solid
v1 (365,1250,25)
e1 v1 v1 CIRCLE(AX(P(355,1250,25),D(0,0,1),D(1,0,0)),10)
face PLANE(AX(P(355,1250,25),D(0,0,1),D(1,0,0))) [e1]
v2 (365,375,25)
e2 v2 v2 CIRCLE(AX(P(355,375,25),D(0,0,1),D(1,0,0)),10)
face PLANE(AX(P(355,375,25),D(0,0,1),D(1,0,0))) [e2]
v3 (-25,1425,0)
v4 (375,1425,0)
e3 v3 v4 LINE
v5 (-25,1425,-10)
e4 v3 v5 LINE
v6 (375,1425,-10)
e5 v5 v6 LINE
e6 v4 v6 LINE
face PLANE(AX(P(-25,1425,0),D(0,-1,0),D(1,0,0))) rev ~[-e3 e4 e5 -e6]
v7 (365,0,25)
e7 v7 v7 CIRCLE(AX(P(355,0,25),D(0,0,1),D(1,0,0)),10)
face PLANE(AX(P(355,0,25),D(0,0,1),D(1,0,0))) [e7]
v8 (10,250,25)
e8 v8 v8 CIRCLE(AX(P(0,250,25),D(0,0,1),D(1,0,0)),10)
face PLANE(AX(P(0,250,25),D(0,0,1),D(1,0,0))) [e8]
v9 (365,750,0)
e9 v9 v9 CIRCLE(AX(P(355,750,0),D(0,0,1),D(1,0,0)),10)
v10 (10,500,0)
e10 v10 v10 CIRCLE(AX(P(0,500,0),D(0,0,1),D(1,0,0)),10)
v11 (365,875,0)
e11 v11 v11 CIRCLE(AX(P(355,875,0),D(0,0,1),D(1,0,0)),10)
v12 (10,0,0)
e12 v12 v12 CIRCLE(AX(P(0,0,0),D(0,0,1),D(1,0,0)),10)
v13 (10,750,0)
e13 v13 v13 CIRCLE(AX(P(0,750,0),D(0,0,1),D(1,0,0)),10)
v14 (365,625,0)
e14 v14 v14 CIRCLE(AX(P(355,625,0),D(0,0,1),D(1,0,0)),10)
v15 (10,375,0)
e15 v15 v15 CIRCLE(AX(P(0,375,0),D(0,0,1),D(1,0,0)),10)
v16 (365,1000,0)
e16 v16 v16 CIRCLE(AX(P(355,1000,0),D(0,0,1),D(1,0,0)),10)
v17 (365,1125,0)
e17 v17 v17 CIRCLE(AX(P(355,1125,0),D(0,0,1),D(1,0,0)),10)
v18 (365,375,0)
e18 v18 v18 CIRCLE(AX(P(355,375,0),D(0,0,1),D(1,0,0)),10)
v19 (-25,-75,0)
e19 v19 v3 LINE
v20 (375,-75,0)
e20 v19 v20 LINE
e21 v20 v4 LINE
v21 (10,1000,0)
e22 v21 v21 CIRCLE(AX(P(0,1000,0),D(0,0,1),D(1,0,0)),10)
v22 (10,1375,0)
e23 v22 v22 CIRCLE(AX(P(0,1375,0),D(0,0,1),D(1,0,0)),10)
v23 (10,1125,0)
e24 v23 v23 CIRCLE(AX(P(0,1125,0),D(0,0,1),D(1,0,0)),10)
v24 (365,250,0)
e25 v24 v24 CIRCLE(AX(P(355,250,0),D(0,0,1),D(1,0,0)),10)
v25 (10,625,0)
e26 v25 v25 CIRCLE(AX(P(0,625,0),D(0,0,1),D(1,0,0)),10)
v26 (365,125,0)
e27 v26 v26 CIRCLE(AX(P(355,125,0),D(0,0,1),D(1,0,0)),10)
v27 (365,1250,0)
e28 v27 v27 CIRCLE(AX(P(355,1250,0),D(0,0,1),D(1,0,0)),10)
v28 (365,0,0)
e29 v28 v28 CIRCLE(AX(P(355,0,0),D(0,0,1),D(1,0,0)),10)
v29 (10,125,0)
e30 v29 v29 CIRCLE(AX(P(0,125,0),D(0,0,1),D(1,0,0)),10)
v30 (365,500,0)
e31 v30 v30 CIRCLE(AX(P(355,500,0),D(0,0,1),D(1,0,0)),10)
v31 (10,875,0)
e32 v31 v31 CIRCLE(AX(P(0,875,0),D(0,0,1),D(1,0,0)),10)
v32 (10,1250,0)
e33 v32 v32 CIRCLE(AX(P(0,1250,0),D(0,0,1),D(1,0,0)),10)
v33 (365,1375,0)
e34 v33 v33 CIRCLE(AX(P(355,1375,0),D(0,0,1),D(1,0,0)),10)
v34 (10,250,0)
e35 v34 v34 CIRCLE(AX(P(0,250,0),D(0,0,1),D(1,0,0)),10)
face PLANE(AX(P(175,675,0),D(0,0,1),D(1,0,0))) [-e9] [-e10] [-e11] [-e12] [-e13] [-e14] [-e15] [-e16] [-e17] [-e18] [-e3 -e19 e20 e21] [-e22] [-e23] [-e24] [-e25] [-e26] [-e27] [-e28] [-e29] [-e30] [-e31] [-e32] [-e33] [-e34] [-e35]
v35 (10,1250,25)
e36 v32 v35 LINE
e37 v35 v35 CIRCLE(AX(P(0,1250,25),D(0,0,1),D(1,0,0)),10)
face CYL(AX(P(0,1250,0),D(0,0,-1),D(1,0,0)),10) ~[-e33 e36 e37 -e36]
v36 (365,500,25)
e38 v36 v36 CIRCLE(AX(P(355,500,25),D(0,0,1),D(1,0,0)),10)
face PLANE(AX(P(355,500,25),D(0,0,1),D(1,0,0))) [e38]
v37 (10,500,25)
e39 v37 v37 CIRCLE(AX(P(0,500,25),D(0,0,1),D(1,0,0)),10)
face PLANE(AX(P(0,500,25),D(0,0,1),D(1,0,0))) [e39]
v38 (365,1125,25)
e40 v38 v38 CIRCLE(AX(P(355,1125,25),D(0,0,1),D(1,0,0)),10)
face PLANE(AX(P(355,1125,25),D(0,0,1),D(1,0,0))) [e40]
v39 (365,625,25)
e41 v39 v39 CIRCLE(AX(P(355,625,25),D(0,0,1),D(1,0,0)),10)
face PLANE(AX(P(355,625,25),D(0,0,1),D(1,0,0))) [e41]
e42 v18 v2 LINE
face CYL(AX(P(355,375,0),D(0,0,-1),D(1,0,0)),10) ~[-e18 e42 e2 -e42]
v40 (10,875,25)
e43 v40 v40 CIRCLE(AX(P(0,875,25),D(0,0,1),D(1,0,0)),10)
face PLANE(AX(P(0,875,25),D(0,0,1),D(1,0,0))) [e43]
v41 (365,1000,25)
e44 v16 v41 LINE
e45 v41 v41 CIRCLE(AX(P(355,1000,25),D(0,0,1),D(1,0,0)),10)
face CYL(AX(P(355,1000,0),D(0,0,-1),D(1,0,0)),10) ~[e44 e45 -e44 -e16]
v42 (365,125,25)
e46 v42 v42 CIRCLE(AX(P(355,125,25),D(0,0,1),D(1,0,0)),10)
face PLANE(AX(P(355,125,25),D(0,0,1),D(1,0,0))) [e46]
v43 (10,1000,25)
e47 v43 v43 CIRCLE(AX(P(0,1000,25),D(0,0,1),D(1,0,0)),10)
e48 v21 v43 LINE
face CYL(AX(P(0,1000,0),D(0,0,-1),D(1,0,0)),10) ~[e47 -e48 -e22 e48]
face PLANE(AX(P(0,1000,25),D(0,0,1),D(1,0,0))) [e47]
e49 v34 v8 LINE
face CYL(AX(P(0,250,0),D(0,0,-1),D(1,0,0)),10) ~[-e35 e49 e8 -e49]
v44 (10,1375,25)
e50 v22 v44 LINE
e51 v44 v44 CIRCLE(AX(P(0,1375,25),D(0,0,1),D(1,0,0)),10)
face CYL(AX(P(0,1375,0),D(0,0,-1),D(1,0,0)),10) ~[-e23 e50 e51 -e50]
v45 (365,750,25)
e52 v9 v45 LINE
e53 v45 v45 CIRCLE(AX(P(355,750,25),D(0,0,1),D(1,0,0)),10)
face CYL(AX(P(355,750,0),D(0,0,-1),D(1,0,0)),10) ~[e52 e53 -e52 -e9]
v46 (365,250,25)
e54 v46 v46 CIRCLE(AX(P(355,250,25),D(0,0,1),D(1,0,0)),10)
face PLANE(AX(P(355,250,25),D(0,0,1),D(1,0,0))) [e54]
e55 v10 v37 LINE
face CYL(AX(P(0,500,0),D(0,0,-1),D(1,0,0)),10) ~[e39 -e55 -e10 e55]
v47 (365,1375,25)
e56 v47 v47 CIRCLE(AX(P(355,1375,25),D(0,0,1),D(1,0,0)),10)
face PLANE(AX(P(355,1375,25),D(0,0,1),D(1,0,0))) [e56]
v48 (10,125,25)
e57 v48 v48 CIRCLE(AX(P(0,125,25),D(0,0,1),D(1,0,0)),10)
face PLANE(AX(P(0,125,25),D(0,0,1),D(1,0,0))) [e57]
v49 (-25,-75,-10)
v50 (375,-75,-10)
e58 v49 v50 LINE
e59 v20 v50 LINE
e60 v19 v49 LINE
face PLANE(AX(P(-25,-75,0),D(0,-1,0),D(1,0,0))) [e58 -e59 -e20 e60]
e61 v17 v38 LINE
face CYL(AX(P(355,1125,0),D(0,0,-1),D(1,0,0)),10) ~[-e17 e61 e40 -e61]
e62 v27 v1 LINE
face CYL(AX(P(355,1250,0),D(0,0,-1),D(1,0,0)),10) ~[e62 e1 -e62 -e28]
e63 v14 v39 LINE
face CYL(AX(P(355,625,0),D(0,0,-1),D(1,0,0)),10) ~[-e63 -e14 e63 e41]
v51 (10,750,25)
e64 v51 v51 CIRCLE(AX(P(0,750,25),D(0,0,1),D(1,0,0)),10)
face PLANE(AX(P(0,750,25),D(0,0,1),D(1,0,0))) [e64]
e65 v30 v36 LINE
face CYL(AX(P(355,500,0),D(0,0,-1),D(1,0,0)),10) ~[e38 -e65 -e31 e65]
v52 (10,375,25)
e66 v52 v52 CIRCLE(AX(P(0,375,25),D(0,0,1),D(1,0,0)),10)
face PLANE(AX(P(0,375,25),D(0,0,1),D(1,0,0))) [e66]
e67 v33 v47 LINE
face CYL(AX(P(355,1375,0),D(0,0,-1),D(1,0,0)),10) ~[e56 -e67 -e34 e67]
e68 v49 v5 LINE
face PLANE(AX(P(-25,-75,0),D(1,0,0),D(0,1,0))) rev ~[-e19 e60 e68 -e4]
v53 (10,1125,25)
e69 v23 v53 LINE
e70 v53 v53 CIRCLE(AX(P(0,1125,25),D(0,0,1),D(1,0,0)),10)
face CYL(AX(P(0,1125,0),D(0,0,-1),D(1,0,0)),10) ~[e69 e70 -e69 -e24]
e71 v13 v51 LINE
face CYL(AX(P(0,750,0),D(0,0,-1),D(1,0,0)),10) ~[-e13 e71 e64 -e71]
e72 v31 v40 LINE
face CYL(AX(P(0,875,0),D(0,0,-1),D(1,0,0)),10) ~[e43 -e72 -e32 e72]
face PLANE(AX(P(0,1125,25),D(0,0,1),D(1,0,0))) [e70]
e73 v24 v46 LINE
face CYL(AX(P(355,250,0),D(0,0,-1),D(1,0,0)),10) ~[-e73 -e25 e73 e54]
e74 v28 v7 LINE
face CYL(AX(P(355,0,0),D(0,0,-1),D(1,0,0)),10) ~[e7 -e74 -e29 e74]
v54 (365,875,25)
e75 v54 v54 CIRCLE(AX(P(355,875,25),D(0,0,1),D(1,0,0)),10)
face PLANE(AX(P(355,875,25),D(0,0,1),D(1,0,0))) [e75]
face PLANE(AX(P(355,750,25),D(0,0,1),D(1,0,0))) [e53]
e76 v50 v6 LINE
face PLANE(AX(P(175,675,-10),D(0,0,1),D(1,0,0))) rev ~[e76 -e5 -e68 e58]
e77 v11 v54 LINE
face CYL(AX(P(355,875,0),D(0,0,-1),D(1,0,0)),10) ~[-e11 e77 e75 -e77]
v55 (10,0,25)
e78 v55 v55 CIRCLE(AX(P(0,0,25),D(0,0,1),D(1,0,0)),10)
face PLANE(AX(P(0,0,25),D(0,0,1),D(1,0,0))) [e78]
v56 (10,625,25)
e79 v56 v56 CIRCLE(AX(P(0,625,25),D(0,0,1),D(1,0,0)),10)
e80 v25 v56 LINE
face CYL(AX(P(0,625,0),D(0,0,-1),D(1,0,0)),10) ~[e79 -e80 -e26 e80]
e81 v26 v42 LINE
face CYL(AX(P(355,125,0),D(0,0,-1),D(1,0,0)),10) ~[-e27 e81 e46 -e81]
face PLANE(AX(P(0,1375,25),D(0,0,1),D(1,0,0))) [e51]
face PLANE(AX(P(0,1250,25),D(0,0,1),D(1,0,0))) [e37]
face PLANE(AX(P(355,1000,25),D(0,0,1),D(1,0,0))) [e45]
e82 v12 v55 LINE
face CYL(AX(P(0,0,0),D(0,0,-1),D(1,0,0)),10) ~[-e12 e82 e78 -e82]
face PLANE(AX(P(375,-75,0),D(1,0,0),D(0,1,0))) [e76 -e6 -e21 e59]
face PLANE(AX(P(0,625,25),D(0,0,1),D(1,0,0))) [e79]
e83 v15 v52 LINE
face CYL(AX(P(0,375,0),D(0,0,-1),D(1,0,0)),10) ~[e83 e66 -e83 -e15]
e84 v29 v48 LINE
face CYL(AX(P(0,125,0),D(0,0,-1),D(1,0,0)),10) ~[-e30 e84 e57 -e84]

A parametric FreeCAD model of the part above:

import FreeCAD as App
import Part
import Sketcher


def add_polygon(sketch, points):
    """Adds a closed chain of lines whose ends are joined by coincident constraints."""
    first, n = sketch.GeometryCount, len(points)
    for a, b in zip(points, points[1:] + points[:1]):
        sketch.addGeometry(Part.LineSegment(App.Vector(*a, 0), App.Vector(*b, 0)), False)
    for i in range(n):
        sketch.addConstraint(Sketcher.Constraint("Coincident", first + i, 2, first + (i + 1) % n, 1))

doc = App.newDocument("Part")
body = doc.addObject("PartDesign::Body", "Body")

sketch1 = body.newObject("Sketcher::SketchObject", "Sketch")
sketch1.AttachmentSupport = (doc.getObject("XY_Plane"), [""])
sketch1.MapMode = "FlatFace"
add_polygon(sketch1, [(-25, 1425), (-25, -75), (375, -75), (375, 1425)])
sketch1.addConstraint([
    Sketcher.Constraint("Vertical", 0),
    Sketcher.Constraint("Horizontal", 1),
    Sketcher.Constraint("Vertical", 2),
    Sketcher.Constraint("Horizontal", 3),
    Sketcher.Constraint("DistanceX", 1, 1, 1, 2, 400.0),
    Sketcher.Constraint("DistanceY", 0, 2, 0, 1, 1500.0),
    Sketcher.Constraint("DistanceX", 0, 2, -1, 1, 25.0),
    Sketcher.Constraint("DistanceY", 0, 2, -1, 1, 75.0),
])
pad1 = body.newObject("PartDesign::Pad", "Pad")
pad1.Profile = sketch1
pad1.Length = 10
pad1.Reversed = True

sketch2 = body.newObject("Sketcher::SketchObject", "Sketch001")
sketch2.AttachmentSupport = (doc.getObject("XY_Plane"), [""])
sketch2.MapMode = "FlatFace"
sketch2.addGeometry([
    Part.Circle(App.Vector(0, 0, 0), App.Vector(0, 0, 1), 10),
    Part.Circle(App.Vector(0, 125, 0), App.Vector(0, 0, 1), 10),
    Part.Circle(App.Vector(0, 250, 0), App.Vector(0, 0, 1), 10),
    Part.Circle(App.Vector(0, 375, 0), App.Vector(0, 0, 1), 10),
    Part.Circle(App.Vector(0, 500, 0), App.Vector(0, 0, 1), 10),
    Part.Circle(App.Vector(0, 625, 0), App.Vector(0, 0, 1), 10),
    Part.Circle(App.Vector(0, 750, 0), App.Vector(0, 0, 1), 10),
    Part.Circle(App.Vector(0, 875, 0), App.Vector(0, 0, 1), 10),
    Part.Circle(App.Vector(0, 1000, 0), App.Vector(0, 0, 1), 10),
    Part.Circle(App.Vector(0, 1125, 0), App.Vector(0, 0, 1), 10),
    Part.Circle(App.Vector(0, 1250, 0), App.Vector(0, 0, 1), 10),
    Part.Circle(App.Vector(0, 1375, 0), App.Vector(0, 0, 1), 10),
    Part.Circle(App.Vector(355, 0, 0), App.Vector(0, 0, 1), 10),
    Part.Circle(App.Vector(355, 125, 0), App.Vector(0, 0, 1), 10),
    Part.Circle(App.Vector(355, 250, 0), App.Vector(0, 0, 1), 10),
    Part.Circle(App.Vector(355, 375, 0), App.Vector(0, 0, 1), 10),
    Part.Circle(App.Vector(355, 500, 0), App.Vector(0, 0, 1), 10),
    Part.Circle(App.Vector(355, 625, 0), App.Vector(0, 0, 1), 10),
    Part.Circle(App.Vector(355, 750, 0), App.Vector(0, 0, 1), 10),
    Part.Circle(App.Vector(355, 875, 0), App.Vector(0, 0, 1), 10),
    Part.Circle(App.Vector(355, 1000, 0), App.Vector(0, 0, 1), 10),
    Part.Circle(App.Vector(355, 1125, 0), App.Vector(0, 0, 1), 10),
    Part.Circle(App.Vector(355, 1250, 0), App.Vector(0, 0, 1), 10),
    Part.Circle(App.Vector(355, 1375, 0), App.Vector(0, 0, 1), 10),
], False)
sketch2.addConstraint([
    Sketcher.Constraint("Coincident", 0, 3, -1, 1),
    Sketcher.Constraint("Equal", 0, 1),
    Sketcher.Constraint("Equal", 1, 2),
    Sketcher.Constraint("Equal", 2, 3),
    Sketcher.Constraint("Equal", 3, 4),
    Sketcher.Constraint("Equal", 4, 5),
    Sketcher.Constraint("Equal", 5, 6),
    Sketcher.Constraint("Equal", 6, 7),
    Sketcher.Constraint("Equal", 7, 8),
    Sketcher.Constraint("Equal", 8, 9),
    Sketcher.Constraint("Equal", 9, 10),
    Sketcher.Constraint("Equal", 10, 11),
    Sketcher.Constraint("Equal", 11, 12),
    Sketcher.Constraint("Equal", 12, 13),
    Sketcher.Constraint("Equal", 13, 14),
    Sketcher.Constraint("Equal", 14, 15),
    Sketcher.Constraint("Equal", 15, 16),
    Sketcher.Constraint("Equal", 16, 17),
    Sketcher.Constraint("Equal", 17, 18),
    Sketcher.Constraint("Equal", 18, 19),
    Sketcher.Constraint("Equal", 19, 20),
    Sketcher.Constraint("Equal", 20, 21),
    Sketcher.Constraint("Equal", 21, 22),
    Sketcher.Constraint("Equal", 22, 23),
    Sketcher.Constraint("PointOnObject", 1, 3, -2),
    Sketcher.Constraint("PointOnObject", 2, 3, -2),
    Sketcher.Constraint("PointOnObject", 3, 3, -2),
    Sketcher.Constraint("PointOnObject", 4, 3, -2),
    Sketcher.Constraint("PointOnObject", 5, 3, -2),
    Sketcher.Constraint("PointOnObject", 6, 3, -2),
    Sketcher.Constraint("PointOnObject", 7, 3, -2),
    Sketcher.Constraint("PointOnObject", 8, 3, -2),
    Sketcher.Constraint("PointOnObject", 9, 3, -2),
    Sketcher.Constraint("PointOnObject", 10, 3, -2),
    Sketcher.Constraint("PointOnObject", 11, 3, -2),
    Sketcher.Constraint("PointOnObject", 12, 3, -1),
    Sketcher.Constraint("Horizontal", 1, 3, 13, 3),
    Sketcher.Constraint("Horizontal", 2, 3, 14, 3),
    Sketcher.Constraint("Horizontal", 3, 3, 15, 3),
    Sketcher.Constraint("Horizontal", 4, 3, 16, 3),
    Sketcher.Constraint("Horizontal", 5, 3, 17, 3),
    Sketcher.Constraint("Horizontal", 6, 3, 18, 3),
    Sketcher.Constraint("Horizontal", 7, 3, 19, 3),
    Sketcher.Constraint("Horizontal", 8, 3, 20, 3),
    Sketcher.Constraint("Horizontal", 9, 3, 21, 3),
    Sketcher.Constraint("Horizontal", 10, 3, 22, 3),
    Sketcher.Constraint("Horizontal", 11, 3, 23, 3),
    Sketcher.Constraint("Vertical", 12, 3, 13, 3),
    Sketcher.Constraint("Vertical", 13, 3, 14, 3),
    Sketcher.Constraint("Vertical", 14, 3, 15, 3),
    Sketcher.Constraint("Vertical", 15, 3, 16, 3),
    Sketcher.Constraint("Vertical", 16, 3, 17, 3),
    Sketcher.Constraint("Vertical", 17, 3, 18, 3),
    Sketcher.Constraint("Vertical", 18, 3, 19, 3),
    Sketcher.Constraint("Vertical", 19, 3, 20, 3),
    Sketcher.Constraint("Vertical", 20, 3, 21, 3),
    Sketcher.Constraint("Vertical", 21, 3, 22, 3),
    Sketcher.Constraint("Vertical", 22, 3, 23, 3),
    Sketcher.Constraint("Diameter", 0, 20.0),
    Sketcher.Constraint("DistanceY", -1, 1, 1, 3, 125.0),
    Sketcher.Constraint("DistanceY", -1, 1, 2, 3, 250.0),
    Sketcher.Constraint("DistanceY", -1, 1, 3, 3, 375.0),
    Sketcher.Constraint("DistanceY", -1, 1, 4, 3, 500.0),
    Sketcher.Constraint("DistanceY", -1, 1, 5, 3, 625.0),
    Sketcher.Constraint("DistanceY", -1, 1, 6, 3, 750.0),
    Sketcher.Constraint("DistanceY", -1, 1, 7, 3, 875.0),
    Sketcher.Constraint("DistanceY", -1, 1, 8, 3, 1000.0),
    Sketcher.Constraint("DistanceY", -1, 1, 9, 3, 1125.0),
    Sketcher.Constraint("DistanceY", -1, 1, 10, 3, 1250.0),
    Sketcher.Constraint("DistanceY", -1, 1, 11, 3, 1375.0),
    Sketcher.Constraint("DistanceX", -1, 1, 12, 3, 355.0),
])
pad2 = body.newObject("PartDesign::Pad", "Pad001")
pad2.Profile = sketch2
pad2.Length = 25

doc.recompute()
